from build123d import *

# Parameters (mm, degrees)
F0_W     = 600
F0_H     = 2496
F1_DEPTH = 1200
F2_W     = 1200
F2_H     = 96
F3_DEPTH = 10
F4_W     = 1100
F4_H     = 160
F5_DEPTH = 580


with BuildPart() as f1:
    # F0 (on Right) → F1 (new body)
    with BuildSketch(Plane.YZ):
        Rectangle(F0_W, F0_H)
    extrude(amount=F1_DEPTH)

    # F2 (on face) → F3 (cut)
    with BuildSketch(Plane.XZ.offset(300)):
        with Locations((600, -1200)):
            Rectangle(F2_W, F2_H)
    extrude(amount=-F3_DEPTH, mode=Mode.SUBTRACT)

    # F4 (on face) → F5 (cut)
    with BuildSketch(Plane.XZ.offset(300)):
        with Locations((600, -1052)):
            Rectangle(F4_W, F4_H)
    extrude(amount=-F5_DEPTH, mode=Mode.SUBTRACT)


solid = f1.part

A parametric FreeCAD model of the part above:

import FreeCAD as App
import Part
import Sketcher

V = App.Vector
Q = App.Units.Quantity


def add_polygon(sketch, points):
    """Adds a closed chain of lines whose ends are joined by coincident constraints."""
    first, n = sketch.GeometryCount, len(points)
    for a, b in zip(points, points[1:] + points[:1]):
        sketch.addGeometry(Part.LineSegment(App.Vector(*a, 0), App.Vector(*b, 0)), False)
    for i in range(n):
        sketch.addConstraint(Sketcher.Constraint("Coincident", first + i, 2, first + (i + 1) % n, 1))

doc = App.newDocument("Part")
body = doc.addObject("PartDesign::Body", "Body")

# Sketch on YZ plane
sketch1 = doc.addObject("Sketcher::SketchObject", "Sketch")
body.addObject(sketch1)
sketch1.AttachmentSupport = (doc.YZ_Plane, [""])
sketch1.MapMode = "FlatFace"
add_polygon(sketch1, [(-300, 1248), (-300, -1248), (300, -1248), (300, 1248)])  # lines 0-3
sketch1.addConstraint([
    Sketcher.Constraint("Vertical", 0),
    Sketcher.Constraint("Horizontal", 1),
    Sketcher.Constraint("Vertical", 2),
    Sketcher.Constraint("Horizontal", 3),
    Sketcher.Constraint("Symmetric", 0, 2, 2, 2, -1, 1),
    Sketcher.Constraint("DistanceX", 1, 1, 1, 2, Q("600 mm")),
    Sketcher.Constraint("DistanceY", 0, 2, 0, 1, Q("2496 mm")),
])
pad1 = doc.addObject("PartDesign::Pad", "Pad")
body.addObject(pad1)
pad1.Profile = sketch1
pad1.Length = 1200

# Sketch on XZ plane
sketch2 = doc.addObject("Sketcher::SketchObject", "Sketch001")
body.addObject(sketch2)
sketch2.AttachmentSupport = (doc.XZ_Plane, [""])
sketch2.MapMode = "FlatFace"
sketch2.AttachmentOffset = App.Placement(V(0, 0, 300), App.Rotation())
add_polygon(sketch2, [(0, -1152), (0, -1248), (1200, -1248), (1200, -1152)])  # lines 0-3
sketch2.addConstraint([
    Sketcher.Constraint("Vertical", 0),
    Sketcher.Constraint("Horizontal", 1),
    Sketcher.Constraint("Vertical", 2),
    Sketcher.Constraint("Horizontal", 3),
    Sketcher.Constraint("PointOnObject", 0, 2, -2),
    Sketcher.Constraint("DistanceX", 1, 1, 1, 2, Q("1200 mm")),
    Sketcher.Constraint("DistanceY", 0, 2, 0, 1, Q("96 mm")),
    Sketcher.Constraint("DistanceY", 0, 2, -1, 1, Q("1248 mm")),
])
pocket1 = doc.addObject("PartDesign::Pocket", "Pocket")
body.addObject(pocket1)
pocket1.Profile = sketch2
pocket1.Length = 10

# Sketch on XZ plane
sketch3 = doc.addObject("Sketcher::SketchObject", "Sketch002")
body.addObject(sketch3)
sketch3.AttachmentSupport = (doc.XZ_Plane, [""])
sketch3.MapMode = "FlatFace"
sketch3.AttachmentOffset = App.Placement(V(0, 0, 300), App.Rotation())
add_polygon(sketch3, [(50, -972), (50, -1132), (1150, -1132), (1150, -972)])  # lines 0-3
sketch3.addConstraint([
    Sketcher.Constraint("Vertical", 0),
    Sketcher.Constraint("Horizontal", 1),
    Sketcher.Constraint("Vertical", 2),
    Sketcher.Constraint("Horizontal", 3),
    Sketcher.Constraint("DistanceX", 1, 1, 1, 2, Q("1100 mm")),
    Sketcher.Constraint("DistanceY", 0, 2, 0, 1, Q("160 mm")),
    Sketcher.Constraint("DistanceX", -1, 1, 0, 2, Q("50 mm")),
    Sketcher.Constraint("DistanceY", 0, 2, -1, 1, Q("1132 mm")),
])
pocket2 = doc.addObject("PartDesign::Pocket", "Pocket001")
body.addObject(pocket2)
pocket2.Profile = sketch3
pocket2.Length = 580

doc.recompute()
